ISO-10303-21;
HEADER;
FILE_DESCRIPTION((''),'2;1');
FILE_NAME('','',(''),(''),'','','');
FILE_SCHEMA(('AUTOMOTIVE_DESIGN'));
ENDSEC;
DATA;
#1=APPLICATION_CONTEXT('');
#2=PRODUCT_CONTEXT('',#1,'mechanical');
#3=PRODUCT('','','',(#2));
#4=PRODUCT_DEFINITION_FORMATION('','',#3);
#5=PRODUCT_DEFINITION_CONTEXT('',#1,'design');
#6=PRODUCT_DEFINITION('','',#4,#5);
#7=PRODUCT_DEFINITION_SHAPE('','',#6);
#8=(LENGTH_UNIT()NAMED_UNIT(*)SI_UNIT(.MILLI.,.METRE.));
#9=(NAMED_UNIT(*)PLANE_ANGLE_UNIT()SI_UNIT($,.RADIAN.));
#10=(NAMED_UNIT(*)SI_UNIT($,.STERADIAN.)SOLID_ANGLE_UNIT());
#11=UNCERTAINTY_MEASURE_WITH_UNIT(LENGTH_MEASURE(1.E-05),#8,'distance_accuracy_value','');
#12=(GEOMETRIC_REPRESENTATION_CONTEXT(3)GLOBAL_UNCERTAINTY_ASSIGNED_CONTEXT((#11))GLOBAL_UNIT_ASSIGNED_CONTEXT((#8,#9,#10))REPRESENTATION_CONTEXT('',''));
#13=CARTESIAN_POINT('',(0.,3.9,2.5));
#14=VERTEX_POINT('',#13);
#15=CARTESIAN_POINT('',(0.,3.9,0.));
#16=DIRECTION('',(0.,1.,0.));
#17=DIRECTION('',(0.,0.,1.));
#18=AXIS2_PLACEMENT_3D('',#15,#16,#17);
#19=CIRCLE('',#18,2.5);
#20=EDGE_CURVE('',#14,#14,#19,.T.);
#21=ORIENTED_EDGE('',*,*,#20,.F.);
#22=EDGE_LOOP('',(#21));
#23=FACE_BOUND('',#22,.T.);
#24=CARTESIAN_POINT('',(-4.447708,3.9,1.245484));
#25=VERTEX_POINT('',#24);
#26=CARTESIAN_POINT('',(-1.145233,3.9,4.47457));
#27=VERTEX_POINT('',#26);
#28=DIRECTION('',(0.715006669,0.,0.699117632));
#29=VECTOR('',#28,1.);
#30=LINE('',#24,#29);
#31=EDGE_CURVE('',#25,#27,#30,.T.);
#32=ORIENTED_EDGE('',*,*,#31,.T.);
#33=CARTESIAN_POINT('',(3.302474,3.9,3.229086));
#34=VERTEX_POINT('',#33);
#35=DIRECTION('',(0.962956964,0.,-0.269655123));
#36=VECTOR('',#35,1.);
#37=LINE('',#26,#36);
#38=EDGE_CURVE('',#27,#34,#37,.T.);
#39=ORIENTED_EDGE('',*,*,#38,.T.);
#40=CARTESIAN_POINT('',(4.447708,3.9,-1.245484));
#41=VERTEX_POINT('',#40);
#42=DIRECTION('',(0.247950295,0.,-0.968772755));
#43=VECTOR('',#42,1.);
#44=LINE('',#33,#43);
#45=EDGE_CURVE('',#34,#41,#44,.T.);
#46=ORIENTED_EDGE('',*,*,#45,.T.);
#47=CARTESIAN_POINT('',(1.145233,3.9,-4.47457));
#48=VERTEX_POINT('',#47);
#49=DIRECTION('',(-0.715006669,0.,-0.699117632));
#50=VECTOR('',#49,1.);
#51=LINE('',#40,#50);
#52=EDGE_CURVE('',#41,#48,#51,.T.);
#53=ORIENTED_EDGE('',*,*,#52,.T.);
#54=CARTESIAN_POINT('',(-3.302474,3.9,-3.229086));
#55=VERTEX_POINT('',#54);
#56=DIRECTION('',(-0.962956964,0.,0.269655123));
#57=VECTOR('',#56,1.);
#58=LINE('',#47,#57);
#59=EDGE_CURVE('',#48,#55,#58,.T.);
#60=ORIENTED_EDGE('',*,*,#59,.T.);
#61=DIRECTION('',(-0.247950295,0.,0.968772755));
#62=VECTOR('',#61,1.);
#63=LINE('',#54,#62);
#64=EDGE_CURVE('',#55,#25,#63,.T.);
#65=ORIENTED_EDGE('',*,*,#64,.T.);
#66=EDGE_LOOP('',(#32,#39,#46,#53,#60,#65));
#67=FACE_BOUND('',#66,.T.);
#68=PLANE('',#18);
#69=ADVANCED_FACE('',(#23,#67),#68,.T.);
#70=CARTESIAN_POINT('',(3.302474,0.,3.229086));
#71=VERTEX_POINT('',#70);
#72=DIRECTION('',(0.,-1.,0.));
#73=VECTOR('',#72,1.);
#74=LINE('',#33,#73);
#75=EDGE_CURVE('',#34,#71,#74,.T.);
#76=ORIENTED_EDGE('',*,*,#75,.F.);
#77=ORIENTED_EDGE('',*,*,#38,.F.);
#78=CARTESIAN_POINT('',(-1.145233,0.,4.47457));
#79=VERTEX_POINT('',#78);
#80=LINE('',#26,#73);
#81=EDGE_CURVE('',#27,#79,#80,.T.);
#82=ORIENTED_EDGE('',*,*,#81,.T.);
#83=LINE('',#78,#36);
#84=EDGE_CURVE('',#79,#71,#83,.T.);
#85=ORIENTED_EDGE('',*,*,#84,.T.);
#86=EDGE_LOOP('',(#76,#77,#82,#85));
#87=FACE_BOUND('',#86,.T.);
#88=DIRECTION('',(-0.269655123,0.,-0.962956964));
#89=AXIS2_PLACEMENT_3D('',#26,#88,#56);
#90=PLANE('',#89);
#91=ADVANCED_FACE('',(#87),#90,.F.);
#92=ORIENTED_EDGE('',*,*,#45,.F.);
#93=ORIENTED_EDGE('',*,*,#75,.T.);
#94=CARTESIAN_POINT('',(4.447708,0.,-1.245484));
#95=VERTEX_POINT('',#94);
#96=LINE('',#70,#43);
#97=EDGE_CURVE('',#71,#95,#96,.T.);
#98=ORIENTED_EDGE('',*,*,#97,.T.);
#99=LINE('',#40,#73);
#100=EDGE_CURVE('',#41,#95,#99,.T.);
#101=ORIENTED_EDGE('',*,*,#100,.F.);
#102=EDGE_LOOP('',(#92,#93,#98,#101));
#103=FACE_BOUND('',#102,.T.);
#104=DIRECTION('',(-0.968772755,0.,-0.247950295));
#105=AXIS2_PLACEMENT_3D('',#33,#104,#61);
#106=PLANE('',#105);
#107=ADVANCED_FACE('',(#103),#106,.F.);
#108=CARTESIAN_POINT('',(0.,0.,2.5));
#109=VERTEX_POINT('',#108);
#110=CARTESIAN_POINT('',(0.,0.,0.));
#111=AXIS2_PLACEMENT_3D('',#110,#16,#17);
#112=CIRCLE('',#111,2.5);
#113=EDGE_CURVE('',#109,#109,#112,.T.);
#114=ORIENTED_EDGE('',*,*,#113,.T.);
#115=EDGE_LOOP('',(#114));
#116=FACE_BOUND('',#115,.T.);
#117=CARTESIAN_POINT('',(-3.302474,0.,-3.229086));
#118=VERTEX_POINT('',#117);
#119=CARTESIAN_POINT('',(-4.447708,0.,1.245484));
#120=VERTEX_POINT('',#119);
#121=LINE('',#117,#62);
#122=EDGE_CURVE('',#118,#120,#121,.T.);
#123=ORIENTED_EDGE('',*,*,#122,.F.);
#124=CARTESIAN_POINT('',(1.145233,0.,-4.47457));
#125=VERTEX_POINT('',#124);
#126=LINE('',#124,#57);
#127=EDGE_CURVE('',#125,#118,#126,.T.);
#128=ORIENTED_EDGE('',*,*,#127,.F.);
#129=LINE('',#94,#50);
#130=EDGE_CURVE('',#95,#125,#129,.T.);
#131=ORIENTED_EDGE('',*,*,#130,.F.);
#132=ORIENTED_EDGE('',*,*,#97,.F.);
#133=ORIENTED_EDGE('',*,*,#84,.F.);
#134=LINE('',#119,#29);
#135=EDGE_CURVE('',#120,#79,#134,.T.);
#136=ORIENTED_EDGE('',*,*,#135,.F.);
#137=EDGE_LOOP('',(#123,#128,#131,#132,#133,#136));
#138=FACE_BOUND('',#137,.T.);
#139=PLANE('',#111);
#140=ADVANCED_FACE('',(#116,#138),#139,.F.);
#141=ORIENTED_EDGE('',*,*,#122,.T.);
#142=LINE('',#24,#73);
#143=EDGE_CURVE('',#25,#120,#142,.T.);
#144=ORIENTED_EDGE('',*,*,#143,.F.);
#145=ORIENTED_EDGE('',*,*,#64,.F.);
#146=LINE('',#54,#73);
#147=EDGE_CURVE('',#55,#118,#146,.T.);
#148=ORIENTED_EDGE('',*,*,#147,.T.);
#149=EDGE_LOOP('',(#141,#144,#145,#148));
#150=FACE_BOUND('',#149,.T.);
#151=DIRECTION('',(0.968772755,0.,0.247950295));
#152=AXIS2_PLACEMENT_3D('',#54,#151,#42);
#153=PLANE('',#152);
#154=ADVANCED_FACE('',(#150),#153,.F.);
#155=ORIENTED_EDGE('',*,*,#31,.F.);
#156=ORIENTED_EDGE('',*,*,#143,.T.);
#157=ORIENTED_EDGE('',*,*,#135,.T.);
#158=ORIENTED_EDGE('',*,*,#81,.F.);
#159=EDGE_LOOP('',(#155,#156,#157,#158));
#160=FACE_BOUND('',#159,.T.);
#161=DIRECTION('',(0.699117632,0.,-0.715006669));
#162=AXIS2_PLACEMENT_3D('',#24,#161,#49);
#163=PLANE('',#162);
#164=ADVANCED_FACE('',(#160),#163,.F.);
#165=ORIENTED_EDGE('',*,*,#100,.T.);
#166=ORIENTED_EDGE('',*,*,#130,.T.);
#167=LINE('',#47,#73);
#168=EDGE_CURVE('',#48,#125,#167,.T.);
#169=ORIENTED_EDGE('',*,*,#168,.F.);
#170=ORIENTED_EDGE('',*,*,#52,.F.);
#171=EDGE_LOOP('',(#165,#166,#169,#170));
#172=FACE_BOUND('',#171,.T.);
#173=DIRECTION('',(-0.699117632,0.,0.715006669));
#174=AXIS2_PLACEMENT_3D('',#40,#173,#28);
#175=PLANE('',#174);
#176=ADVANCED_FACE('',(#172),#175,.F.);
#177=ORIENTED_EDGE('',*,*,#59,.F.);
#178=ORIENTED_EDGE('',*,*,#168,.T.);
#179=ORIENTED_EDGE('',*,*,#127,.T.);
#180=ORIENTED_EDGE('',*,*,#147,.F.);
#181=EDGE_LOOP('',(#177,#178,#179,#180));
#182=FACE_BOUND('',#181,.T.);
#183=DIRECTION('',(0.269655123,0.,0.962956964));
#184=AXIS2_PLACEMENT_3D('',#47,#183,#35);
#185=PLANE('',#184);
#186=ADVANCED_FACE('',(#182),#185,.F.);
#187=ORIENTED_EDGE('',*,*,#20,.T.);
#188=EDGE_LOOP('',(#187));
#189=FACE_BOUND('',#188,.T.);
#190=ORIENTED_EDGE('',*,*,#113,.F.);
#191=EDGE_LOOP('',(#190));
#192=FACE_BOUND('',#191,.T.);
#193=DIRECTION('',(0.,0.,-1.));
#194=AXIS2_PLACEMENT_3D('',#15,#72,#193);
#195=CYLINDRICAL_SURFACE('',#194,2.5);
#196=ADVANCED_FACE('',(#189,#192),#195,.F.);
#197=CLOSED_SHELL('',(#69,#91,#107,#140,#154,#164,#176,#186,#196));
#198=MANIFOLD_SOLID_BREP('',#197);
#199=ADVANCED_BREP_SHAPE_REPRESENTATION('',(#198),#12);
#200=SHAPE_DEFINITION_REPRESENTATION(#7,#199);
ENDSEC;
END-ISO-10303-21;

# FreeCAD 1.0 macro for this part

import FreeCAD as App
import Part
import Sketcher

V = App.Vector


def add_polygon(sketch, points):
    """Adds a closed chain of lines whose ends are joined by coincident constraints."""
    first, n = sketch.GeometryCount, len(points)
    for a, b in zip(points, points[1:] + points[:1]):
        sketch.addGeometry(Part.LineSegment(App.Vector(*a, 0), App.Vector(*b, 0)), False)
    for i in range(n):
        sketch.addConstraint(Sketcher.Constraint("Coincident", first + i, 2, first + (i + 1) % n, 1))

doc = App.newDocument("Part")
body = doc.addObject("PartDesign::Body", "Body")

# Sketch on XZ plane
sketch1 = body.newObject("Sketcher::SketchObject", "Sketch")
sketch1.AttachmentSupport = (doc.getObject("XZ_Plane"), [""])
sketch1.MapMode = "FlatFace"
add_polygon(sketch1, [(3.3, 3.2), (4.4, -1.2), (1.1, -4.5), (-3.3, -3.2), (-4.4, 1.2), (-1.1, 4.5)])  # lines 0-5
sketch1.addGeometry(Part.Circle(V(0, 0, 0), V(0, 0, 1), 2.5), False)  # 6
sketch1.addConstraint(Sketcher.Constraint("Coincident", 6, 3, -1, 1))
sketch1.addConstraint(Sketcher.Constraint("Symmetric", 0, 2, 3, 2, -1, 1))
sketch1.addConstraint(Sketcher.Constraint("Symmetric", 1, 2, 4, 2, -1, 1))
sketch1.addConstraint(Sketcher.Constraint("Symmetric", 2, 2, 5, 2, -1, 1))
sketch1.addConstraint(Sketcher.Constraint("Equal", 0, 1))
sketch1.addConstraint(Sketcher.Constraint("Equal", 1, 2))
sketch1.addConstraint(Sketcher.Constraint("Diameter", 6, 5.0))
sketch1.addConstraint(Sketcher.Constraint("DistanceY", 1, 2, -1, 1, 4.47457))
sketch1.addConstraint(Sketcher.Constraint("DistanceY", 2, 2, 3, 2, 4.47457))
sketch1.addConstraint(Sketcher.Constraint("DistanceX", 3, 2, 1, 2, 5.592941))
sketch1.addConstraint(Sketcher.Constraint("DistanceX", 2, 2, 4, 2, 2.157241))
pad1 = body.newObject("PartDesign::Pad", "Pad")
pad1.Profile = sketch1
pad1.Length = 3.9
pad1.Reversed = True

doc.recompute()
